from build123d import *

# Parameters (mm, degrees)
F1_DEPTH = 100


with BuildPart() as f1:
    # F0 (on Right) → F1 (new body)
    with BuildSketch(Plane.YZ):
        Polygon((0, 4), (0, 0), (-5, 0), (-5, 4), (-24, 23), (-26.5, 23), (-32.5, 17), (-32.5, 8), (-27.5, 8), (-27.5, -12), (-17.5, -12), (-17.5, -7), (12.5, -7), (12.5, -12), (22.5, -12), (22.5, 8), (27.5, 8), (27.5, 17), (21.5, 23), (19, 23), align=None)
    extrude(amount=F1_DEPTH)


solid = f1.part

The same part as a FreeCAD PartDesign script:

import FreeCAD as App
import Part
import Sketcher

V = App.Vector

doc = App.newDocument("Part")
body = doc.addObject("PartDesign::Body", "Body")

# Sketch on YZ plane
sketch1 = doc.addObject("Sketcher::SketchObject", "Sketch")
body.addObject(sketch1)
sketch1.AttachmentSupport = (doc.YZ_Plane, [""])
sketch1.MapMode = "FlatFace"
sketch1.addGeometry(Part.LineSegment(V(0, 4, 0), V(0, 0, 0)), False)
sketch1.addGeometry(Part.LineSegment(V(0, 0, 0), V(-5, 0, 0)), False)
sketch1.addGeometry(Part.LineSegment(V(-5, 0, 0), V(-5, 4, 0)), False)
sketch1.addGeometry(Part.LineSegment(V(-5, 4, 0), V(-24, 23, 0)), False)
sketch1.addGeometry(Part.LineSegment(V(-24, 23, 0), V(-26.5, 23, 0)), False)
sketch1.addGeometry(Part.LineSegment(V(-26.5, 23, 0), V(-32.5, 17, 0)), False)
sketch1.addGeometry(Part.LineSegment(V(-32.5, 17, 0), V(-32.5, 8, 0)), False)
sketch1.addGeometry(Part.LineSegment(V(-32.5, 8, 0), V(-27.5, 8, 0)), False)
sketch1.addGeometry(Part.LineSegment(V(-27.5, 8, 0), V(-27.5, -12, 0)), False)
sketch1.addGeometry(Part.LineSegment(V(-27.5, -12, 0), V(-17.5, -12, 0)), False)
sketch1.addGeometry(Part.LineSegment(V(-17.5, -12, 0), V(-17.5, -7, 0)), False)
sketch1.addGeometry(Part.LineSegment(V(-17.5, -7, 0), V(12.5, -7, 0)), False)
sketch1.addGeometry(Part.LineSegment(V(12.5, -7, 0), V(12.5, -12, 0)), False)
sketch1.addGeometry(Part.LineSegment(V(12.5, -12, 0), V(22.5, -12, 0)), False)
sketch1.addGeometry(Part.LineSegment(V(22.5, -12, 0), V(22.5, 8, 0)), False)
sketch1.addGeometry(Part.LineSegment(V(22.5, 8, 0), V(27.5, 8, 0)), False)
sketch1.addGeometry(Part.LineSegment(V(27.5, 8, 0), V(27.5, 17, 0)), False)
sketch1.addGeometry(Part.LineSegment(V(27.5, 17, 0), V(21.5, 23, 0)), False)
sketch1.addGeometry(Part.LineSegment(V(21.5, 23, 0), V(19, 23, 0)), False)
sketch1.addGeometry(Part.LineSegment(V(19, 23, 0), V(0, 4, 0)), False)
sketch1.addConstraint(Sketcher.Constraint("Coincident", 0, 2, 1, 1))
sketch1.addConstraint(Sketcher.Constraint("Coincident", 1, 2, 2, 1))
sketch1.addConstraint(Sketcher.Constraint("Coincident", 2, 2, 3, 1))
sketch1.addConstraint(Sketcher.Constraint("Coincident", 3, 2, 4, 1))
sketch1.addConstraint(Sketcher.Constraint("Coincident", 4, 2, 5, 1))
sketch1.addConstraint(Sketcher.Constraint("Coincident", 5, 2, 6, 1))
sketch1.addConstraint(Sketcher.Constraint("Coincident", 6, 2, 7, 1))
sketch1.addConstraint(Sketcher.Constraint("Coincident", 7, 2, 8, 1))
sketch1.addConstraint(Sketcher.Constraint("Coincident", 8, 2, 9, 1))
sketch1.addConstraint(Sketcher.Constraint("Coincident", 9, 2, 10, 1))
sketch1.addConstraint(Sketcher.Constraint("Coincident", 10, 2, 11, 1))
sketch1.addConstraint(Sketcher.Constraint("Coincident", 11, 2, 12, 1))
sketch1.addConstraint(Sketcher.Constraint("Coincident", 12, 2, 13, 1))
sketch1.addConstraint(Sketcher.Constraint("Coincident", 13, 2, 14, 1))
sketch1.addConstraint(Sketcher.Constraint("Coincident", 14, 2, 15, 1))
sketch1.addConstraint(Sketcher.Constraint("Coincident", 15, 2, 16, 1))
sketch1.addConstraint(Sketcher.Constraint("Coincident", 16, 2, 17, 1))
sketch1.addConstraint(Sketcher.Constraint("Coincident", 17, 2, 18, 1))
sketch1.addConstraint(Sketcher.Constraint("Coincident", 18, 2, 19, 1))
sketch1.addConstraint(Sketcher.Constraint("Coincident", 19, 2, 0, 1))
sketch1.addConstraint(Sketcher.Constraint("Vertical", 0))
sketch1.addConstraint(Sketcher.Constraint("Horizontal", 1))
sketch1.addConstraint(Sketcher.Constraint("Vertical", 2))
sketch1.addConstraint(Sketcher.Constraint("Horizontal", 4))
sketch1.addConstraint(Sketcher.Constraint("Vertical", 6))
sketch1.addConstraint(Sketcher.Constraint("Horizontal", 7))
sketch1.addConstraint(Sketcher.Constraint("Vertical", 8))
sketch1.addConstraint(Sketcher.Constraint("Horizontal", 9))
sketch1.addConstraint(Sketcher.Constraint("Vertical", 10))
sketch1.addConstraint(Sketcher.Constraint("Horizontal", 11))
sketch1.addConstraint(Sketcher.Constraint("Vertical", 12))
sketch1.addConstraint(Sketcher.Constraint("Horizontal", 13))
sketch1.addConstraint(Sketcher.Constraint("Vertical", 14))
sketch1.addConstraint(Sketcher.Constraint("Horizontal", 15))
sketch1.addConstraint(Sketcher.Constraint("Vertical", 16))
sketch1.addConstraint(Sketcher.Constraint("Horizontal", 18))
sketch1.addConstraint(Sketcher.Constraint("Coincident", 0, 2, -1, 1))
sketch1.addConstraint(Sketcher.Constraint("Symmetric", 7, 2, 15, 2, -2))
sketch1.addConstraint(Sketcher.Constraint("Perpendicular", 3, 5))
sketch1.addConstraint(Sketcher.Constraint("Perpendicular", 5, 17))
sketch1.addConstraint(Sketcher.Constraint("Perpendicular", 17, 19))
sketch1.addConstraint(Sketcher.Constraint("Horizontal", 9, 2, 12, 2))
sketch1.addConstraint(Sketcher.Constraint("Horizontal", 5, 2, 16, 2))
sketch1.addConstraint(Sketcher.Constraint("Horizontal", 4, 2, 17, 2))
sketch1.addConstraint(Sketcher.Constraint("Horizontal", 2, 2, 19, 2))
sketch1.addConstraint(Sketcher.Constraint("Equal", 1, 7))
sketch1.addConstraint(Sketcher.Constraint("Equal", 9, 13))
sketch1.addConstraint(Sketcher.Constraint("Equal", 7, 15))
sketch1.addConstraint(Sketcher.Constraint("Equal", 4, 18))
sketch1.addConstraint(Sketcher.Constraint("Equal", 15, 10))
sketch1.addConstraint(Sketcher.Constraint("DistanceX", 1, 2, 1, 1, 5.0))
sketch1.addConstraint(Sketcher.Constraint("DistanceX", 9, 1, 9, 2, 10.0))
sketch1.addConstraint(Sketcher.Constraint("DistanceX", 11, 1, 11, 2, 30.0))
sketch1.addConstraint(Sketcher.Constraint("DistanceY", 0, 2, 0, 1, 4.0))
sketch1.addConstraint(Sketcher.Constraint("DistanceY", 6, 2, 6, 1, 9.0))
sketch1.addConstraint(Sketcher.Constraint("DistanceY", 8, 2, 8, 1, 20.0))
sketch1.addConstraint(Sketcher.Constraint("DistanceX", 4, 2, 4, 1, 2.5))
sketch1.addConstraint(Sketcher.Constraint("DistanceX", 3, 2, -1, 1, 24.0))
pad1 = doc.addObject("PartDesign::Pad", "Pad")
body.addObject(pad1)
pad1.Profile = sketch1
pad1.Length = 100

doc.recompute()
